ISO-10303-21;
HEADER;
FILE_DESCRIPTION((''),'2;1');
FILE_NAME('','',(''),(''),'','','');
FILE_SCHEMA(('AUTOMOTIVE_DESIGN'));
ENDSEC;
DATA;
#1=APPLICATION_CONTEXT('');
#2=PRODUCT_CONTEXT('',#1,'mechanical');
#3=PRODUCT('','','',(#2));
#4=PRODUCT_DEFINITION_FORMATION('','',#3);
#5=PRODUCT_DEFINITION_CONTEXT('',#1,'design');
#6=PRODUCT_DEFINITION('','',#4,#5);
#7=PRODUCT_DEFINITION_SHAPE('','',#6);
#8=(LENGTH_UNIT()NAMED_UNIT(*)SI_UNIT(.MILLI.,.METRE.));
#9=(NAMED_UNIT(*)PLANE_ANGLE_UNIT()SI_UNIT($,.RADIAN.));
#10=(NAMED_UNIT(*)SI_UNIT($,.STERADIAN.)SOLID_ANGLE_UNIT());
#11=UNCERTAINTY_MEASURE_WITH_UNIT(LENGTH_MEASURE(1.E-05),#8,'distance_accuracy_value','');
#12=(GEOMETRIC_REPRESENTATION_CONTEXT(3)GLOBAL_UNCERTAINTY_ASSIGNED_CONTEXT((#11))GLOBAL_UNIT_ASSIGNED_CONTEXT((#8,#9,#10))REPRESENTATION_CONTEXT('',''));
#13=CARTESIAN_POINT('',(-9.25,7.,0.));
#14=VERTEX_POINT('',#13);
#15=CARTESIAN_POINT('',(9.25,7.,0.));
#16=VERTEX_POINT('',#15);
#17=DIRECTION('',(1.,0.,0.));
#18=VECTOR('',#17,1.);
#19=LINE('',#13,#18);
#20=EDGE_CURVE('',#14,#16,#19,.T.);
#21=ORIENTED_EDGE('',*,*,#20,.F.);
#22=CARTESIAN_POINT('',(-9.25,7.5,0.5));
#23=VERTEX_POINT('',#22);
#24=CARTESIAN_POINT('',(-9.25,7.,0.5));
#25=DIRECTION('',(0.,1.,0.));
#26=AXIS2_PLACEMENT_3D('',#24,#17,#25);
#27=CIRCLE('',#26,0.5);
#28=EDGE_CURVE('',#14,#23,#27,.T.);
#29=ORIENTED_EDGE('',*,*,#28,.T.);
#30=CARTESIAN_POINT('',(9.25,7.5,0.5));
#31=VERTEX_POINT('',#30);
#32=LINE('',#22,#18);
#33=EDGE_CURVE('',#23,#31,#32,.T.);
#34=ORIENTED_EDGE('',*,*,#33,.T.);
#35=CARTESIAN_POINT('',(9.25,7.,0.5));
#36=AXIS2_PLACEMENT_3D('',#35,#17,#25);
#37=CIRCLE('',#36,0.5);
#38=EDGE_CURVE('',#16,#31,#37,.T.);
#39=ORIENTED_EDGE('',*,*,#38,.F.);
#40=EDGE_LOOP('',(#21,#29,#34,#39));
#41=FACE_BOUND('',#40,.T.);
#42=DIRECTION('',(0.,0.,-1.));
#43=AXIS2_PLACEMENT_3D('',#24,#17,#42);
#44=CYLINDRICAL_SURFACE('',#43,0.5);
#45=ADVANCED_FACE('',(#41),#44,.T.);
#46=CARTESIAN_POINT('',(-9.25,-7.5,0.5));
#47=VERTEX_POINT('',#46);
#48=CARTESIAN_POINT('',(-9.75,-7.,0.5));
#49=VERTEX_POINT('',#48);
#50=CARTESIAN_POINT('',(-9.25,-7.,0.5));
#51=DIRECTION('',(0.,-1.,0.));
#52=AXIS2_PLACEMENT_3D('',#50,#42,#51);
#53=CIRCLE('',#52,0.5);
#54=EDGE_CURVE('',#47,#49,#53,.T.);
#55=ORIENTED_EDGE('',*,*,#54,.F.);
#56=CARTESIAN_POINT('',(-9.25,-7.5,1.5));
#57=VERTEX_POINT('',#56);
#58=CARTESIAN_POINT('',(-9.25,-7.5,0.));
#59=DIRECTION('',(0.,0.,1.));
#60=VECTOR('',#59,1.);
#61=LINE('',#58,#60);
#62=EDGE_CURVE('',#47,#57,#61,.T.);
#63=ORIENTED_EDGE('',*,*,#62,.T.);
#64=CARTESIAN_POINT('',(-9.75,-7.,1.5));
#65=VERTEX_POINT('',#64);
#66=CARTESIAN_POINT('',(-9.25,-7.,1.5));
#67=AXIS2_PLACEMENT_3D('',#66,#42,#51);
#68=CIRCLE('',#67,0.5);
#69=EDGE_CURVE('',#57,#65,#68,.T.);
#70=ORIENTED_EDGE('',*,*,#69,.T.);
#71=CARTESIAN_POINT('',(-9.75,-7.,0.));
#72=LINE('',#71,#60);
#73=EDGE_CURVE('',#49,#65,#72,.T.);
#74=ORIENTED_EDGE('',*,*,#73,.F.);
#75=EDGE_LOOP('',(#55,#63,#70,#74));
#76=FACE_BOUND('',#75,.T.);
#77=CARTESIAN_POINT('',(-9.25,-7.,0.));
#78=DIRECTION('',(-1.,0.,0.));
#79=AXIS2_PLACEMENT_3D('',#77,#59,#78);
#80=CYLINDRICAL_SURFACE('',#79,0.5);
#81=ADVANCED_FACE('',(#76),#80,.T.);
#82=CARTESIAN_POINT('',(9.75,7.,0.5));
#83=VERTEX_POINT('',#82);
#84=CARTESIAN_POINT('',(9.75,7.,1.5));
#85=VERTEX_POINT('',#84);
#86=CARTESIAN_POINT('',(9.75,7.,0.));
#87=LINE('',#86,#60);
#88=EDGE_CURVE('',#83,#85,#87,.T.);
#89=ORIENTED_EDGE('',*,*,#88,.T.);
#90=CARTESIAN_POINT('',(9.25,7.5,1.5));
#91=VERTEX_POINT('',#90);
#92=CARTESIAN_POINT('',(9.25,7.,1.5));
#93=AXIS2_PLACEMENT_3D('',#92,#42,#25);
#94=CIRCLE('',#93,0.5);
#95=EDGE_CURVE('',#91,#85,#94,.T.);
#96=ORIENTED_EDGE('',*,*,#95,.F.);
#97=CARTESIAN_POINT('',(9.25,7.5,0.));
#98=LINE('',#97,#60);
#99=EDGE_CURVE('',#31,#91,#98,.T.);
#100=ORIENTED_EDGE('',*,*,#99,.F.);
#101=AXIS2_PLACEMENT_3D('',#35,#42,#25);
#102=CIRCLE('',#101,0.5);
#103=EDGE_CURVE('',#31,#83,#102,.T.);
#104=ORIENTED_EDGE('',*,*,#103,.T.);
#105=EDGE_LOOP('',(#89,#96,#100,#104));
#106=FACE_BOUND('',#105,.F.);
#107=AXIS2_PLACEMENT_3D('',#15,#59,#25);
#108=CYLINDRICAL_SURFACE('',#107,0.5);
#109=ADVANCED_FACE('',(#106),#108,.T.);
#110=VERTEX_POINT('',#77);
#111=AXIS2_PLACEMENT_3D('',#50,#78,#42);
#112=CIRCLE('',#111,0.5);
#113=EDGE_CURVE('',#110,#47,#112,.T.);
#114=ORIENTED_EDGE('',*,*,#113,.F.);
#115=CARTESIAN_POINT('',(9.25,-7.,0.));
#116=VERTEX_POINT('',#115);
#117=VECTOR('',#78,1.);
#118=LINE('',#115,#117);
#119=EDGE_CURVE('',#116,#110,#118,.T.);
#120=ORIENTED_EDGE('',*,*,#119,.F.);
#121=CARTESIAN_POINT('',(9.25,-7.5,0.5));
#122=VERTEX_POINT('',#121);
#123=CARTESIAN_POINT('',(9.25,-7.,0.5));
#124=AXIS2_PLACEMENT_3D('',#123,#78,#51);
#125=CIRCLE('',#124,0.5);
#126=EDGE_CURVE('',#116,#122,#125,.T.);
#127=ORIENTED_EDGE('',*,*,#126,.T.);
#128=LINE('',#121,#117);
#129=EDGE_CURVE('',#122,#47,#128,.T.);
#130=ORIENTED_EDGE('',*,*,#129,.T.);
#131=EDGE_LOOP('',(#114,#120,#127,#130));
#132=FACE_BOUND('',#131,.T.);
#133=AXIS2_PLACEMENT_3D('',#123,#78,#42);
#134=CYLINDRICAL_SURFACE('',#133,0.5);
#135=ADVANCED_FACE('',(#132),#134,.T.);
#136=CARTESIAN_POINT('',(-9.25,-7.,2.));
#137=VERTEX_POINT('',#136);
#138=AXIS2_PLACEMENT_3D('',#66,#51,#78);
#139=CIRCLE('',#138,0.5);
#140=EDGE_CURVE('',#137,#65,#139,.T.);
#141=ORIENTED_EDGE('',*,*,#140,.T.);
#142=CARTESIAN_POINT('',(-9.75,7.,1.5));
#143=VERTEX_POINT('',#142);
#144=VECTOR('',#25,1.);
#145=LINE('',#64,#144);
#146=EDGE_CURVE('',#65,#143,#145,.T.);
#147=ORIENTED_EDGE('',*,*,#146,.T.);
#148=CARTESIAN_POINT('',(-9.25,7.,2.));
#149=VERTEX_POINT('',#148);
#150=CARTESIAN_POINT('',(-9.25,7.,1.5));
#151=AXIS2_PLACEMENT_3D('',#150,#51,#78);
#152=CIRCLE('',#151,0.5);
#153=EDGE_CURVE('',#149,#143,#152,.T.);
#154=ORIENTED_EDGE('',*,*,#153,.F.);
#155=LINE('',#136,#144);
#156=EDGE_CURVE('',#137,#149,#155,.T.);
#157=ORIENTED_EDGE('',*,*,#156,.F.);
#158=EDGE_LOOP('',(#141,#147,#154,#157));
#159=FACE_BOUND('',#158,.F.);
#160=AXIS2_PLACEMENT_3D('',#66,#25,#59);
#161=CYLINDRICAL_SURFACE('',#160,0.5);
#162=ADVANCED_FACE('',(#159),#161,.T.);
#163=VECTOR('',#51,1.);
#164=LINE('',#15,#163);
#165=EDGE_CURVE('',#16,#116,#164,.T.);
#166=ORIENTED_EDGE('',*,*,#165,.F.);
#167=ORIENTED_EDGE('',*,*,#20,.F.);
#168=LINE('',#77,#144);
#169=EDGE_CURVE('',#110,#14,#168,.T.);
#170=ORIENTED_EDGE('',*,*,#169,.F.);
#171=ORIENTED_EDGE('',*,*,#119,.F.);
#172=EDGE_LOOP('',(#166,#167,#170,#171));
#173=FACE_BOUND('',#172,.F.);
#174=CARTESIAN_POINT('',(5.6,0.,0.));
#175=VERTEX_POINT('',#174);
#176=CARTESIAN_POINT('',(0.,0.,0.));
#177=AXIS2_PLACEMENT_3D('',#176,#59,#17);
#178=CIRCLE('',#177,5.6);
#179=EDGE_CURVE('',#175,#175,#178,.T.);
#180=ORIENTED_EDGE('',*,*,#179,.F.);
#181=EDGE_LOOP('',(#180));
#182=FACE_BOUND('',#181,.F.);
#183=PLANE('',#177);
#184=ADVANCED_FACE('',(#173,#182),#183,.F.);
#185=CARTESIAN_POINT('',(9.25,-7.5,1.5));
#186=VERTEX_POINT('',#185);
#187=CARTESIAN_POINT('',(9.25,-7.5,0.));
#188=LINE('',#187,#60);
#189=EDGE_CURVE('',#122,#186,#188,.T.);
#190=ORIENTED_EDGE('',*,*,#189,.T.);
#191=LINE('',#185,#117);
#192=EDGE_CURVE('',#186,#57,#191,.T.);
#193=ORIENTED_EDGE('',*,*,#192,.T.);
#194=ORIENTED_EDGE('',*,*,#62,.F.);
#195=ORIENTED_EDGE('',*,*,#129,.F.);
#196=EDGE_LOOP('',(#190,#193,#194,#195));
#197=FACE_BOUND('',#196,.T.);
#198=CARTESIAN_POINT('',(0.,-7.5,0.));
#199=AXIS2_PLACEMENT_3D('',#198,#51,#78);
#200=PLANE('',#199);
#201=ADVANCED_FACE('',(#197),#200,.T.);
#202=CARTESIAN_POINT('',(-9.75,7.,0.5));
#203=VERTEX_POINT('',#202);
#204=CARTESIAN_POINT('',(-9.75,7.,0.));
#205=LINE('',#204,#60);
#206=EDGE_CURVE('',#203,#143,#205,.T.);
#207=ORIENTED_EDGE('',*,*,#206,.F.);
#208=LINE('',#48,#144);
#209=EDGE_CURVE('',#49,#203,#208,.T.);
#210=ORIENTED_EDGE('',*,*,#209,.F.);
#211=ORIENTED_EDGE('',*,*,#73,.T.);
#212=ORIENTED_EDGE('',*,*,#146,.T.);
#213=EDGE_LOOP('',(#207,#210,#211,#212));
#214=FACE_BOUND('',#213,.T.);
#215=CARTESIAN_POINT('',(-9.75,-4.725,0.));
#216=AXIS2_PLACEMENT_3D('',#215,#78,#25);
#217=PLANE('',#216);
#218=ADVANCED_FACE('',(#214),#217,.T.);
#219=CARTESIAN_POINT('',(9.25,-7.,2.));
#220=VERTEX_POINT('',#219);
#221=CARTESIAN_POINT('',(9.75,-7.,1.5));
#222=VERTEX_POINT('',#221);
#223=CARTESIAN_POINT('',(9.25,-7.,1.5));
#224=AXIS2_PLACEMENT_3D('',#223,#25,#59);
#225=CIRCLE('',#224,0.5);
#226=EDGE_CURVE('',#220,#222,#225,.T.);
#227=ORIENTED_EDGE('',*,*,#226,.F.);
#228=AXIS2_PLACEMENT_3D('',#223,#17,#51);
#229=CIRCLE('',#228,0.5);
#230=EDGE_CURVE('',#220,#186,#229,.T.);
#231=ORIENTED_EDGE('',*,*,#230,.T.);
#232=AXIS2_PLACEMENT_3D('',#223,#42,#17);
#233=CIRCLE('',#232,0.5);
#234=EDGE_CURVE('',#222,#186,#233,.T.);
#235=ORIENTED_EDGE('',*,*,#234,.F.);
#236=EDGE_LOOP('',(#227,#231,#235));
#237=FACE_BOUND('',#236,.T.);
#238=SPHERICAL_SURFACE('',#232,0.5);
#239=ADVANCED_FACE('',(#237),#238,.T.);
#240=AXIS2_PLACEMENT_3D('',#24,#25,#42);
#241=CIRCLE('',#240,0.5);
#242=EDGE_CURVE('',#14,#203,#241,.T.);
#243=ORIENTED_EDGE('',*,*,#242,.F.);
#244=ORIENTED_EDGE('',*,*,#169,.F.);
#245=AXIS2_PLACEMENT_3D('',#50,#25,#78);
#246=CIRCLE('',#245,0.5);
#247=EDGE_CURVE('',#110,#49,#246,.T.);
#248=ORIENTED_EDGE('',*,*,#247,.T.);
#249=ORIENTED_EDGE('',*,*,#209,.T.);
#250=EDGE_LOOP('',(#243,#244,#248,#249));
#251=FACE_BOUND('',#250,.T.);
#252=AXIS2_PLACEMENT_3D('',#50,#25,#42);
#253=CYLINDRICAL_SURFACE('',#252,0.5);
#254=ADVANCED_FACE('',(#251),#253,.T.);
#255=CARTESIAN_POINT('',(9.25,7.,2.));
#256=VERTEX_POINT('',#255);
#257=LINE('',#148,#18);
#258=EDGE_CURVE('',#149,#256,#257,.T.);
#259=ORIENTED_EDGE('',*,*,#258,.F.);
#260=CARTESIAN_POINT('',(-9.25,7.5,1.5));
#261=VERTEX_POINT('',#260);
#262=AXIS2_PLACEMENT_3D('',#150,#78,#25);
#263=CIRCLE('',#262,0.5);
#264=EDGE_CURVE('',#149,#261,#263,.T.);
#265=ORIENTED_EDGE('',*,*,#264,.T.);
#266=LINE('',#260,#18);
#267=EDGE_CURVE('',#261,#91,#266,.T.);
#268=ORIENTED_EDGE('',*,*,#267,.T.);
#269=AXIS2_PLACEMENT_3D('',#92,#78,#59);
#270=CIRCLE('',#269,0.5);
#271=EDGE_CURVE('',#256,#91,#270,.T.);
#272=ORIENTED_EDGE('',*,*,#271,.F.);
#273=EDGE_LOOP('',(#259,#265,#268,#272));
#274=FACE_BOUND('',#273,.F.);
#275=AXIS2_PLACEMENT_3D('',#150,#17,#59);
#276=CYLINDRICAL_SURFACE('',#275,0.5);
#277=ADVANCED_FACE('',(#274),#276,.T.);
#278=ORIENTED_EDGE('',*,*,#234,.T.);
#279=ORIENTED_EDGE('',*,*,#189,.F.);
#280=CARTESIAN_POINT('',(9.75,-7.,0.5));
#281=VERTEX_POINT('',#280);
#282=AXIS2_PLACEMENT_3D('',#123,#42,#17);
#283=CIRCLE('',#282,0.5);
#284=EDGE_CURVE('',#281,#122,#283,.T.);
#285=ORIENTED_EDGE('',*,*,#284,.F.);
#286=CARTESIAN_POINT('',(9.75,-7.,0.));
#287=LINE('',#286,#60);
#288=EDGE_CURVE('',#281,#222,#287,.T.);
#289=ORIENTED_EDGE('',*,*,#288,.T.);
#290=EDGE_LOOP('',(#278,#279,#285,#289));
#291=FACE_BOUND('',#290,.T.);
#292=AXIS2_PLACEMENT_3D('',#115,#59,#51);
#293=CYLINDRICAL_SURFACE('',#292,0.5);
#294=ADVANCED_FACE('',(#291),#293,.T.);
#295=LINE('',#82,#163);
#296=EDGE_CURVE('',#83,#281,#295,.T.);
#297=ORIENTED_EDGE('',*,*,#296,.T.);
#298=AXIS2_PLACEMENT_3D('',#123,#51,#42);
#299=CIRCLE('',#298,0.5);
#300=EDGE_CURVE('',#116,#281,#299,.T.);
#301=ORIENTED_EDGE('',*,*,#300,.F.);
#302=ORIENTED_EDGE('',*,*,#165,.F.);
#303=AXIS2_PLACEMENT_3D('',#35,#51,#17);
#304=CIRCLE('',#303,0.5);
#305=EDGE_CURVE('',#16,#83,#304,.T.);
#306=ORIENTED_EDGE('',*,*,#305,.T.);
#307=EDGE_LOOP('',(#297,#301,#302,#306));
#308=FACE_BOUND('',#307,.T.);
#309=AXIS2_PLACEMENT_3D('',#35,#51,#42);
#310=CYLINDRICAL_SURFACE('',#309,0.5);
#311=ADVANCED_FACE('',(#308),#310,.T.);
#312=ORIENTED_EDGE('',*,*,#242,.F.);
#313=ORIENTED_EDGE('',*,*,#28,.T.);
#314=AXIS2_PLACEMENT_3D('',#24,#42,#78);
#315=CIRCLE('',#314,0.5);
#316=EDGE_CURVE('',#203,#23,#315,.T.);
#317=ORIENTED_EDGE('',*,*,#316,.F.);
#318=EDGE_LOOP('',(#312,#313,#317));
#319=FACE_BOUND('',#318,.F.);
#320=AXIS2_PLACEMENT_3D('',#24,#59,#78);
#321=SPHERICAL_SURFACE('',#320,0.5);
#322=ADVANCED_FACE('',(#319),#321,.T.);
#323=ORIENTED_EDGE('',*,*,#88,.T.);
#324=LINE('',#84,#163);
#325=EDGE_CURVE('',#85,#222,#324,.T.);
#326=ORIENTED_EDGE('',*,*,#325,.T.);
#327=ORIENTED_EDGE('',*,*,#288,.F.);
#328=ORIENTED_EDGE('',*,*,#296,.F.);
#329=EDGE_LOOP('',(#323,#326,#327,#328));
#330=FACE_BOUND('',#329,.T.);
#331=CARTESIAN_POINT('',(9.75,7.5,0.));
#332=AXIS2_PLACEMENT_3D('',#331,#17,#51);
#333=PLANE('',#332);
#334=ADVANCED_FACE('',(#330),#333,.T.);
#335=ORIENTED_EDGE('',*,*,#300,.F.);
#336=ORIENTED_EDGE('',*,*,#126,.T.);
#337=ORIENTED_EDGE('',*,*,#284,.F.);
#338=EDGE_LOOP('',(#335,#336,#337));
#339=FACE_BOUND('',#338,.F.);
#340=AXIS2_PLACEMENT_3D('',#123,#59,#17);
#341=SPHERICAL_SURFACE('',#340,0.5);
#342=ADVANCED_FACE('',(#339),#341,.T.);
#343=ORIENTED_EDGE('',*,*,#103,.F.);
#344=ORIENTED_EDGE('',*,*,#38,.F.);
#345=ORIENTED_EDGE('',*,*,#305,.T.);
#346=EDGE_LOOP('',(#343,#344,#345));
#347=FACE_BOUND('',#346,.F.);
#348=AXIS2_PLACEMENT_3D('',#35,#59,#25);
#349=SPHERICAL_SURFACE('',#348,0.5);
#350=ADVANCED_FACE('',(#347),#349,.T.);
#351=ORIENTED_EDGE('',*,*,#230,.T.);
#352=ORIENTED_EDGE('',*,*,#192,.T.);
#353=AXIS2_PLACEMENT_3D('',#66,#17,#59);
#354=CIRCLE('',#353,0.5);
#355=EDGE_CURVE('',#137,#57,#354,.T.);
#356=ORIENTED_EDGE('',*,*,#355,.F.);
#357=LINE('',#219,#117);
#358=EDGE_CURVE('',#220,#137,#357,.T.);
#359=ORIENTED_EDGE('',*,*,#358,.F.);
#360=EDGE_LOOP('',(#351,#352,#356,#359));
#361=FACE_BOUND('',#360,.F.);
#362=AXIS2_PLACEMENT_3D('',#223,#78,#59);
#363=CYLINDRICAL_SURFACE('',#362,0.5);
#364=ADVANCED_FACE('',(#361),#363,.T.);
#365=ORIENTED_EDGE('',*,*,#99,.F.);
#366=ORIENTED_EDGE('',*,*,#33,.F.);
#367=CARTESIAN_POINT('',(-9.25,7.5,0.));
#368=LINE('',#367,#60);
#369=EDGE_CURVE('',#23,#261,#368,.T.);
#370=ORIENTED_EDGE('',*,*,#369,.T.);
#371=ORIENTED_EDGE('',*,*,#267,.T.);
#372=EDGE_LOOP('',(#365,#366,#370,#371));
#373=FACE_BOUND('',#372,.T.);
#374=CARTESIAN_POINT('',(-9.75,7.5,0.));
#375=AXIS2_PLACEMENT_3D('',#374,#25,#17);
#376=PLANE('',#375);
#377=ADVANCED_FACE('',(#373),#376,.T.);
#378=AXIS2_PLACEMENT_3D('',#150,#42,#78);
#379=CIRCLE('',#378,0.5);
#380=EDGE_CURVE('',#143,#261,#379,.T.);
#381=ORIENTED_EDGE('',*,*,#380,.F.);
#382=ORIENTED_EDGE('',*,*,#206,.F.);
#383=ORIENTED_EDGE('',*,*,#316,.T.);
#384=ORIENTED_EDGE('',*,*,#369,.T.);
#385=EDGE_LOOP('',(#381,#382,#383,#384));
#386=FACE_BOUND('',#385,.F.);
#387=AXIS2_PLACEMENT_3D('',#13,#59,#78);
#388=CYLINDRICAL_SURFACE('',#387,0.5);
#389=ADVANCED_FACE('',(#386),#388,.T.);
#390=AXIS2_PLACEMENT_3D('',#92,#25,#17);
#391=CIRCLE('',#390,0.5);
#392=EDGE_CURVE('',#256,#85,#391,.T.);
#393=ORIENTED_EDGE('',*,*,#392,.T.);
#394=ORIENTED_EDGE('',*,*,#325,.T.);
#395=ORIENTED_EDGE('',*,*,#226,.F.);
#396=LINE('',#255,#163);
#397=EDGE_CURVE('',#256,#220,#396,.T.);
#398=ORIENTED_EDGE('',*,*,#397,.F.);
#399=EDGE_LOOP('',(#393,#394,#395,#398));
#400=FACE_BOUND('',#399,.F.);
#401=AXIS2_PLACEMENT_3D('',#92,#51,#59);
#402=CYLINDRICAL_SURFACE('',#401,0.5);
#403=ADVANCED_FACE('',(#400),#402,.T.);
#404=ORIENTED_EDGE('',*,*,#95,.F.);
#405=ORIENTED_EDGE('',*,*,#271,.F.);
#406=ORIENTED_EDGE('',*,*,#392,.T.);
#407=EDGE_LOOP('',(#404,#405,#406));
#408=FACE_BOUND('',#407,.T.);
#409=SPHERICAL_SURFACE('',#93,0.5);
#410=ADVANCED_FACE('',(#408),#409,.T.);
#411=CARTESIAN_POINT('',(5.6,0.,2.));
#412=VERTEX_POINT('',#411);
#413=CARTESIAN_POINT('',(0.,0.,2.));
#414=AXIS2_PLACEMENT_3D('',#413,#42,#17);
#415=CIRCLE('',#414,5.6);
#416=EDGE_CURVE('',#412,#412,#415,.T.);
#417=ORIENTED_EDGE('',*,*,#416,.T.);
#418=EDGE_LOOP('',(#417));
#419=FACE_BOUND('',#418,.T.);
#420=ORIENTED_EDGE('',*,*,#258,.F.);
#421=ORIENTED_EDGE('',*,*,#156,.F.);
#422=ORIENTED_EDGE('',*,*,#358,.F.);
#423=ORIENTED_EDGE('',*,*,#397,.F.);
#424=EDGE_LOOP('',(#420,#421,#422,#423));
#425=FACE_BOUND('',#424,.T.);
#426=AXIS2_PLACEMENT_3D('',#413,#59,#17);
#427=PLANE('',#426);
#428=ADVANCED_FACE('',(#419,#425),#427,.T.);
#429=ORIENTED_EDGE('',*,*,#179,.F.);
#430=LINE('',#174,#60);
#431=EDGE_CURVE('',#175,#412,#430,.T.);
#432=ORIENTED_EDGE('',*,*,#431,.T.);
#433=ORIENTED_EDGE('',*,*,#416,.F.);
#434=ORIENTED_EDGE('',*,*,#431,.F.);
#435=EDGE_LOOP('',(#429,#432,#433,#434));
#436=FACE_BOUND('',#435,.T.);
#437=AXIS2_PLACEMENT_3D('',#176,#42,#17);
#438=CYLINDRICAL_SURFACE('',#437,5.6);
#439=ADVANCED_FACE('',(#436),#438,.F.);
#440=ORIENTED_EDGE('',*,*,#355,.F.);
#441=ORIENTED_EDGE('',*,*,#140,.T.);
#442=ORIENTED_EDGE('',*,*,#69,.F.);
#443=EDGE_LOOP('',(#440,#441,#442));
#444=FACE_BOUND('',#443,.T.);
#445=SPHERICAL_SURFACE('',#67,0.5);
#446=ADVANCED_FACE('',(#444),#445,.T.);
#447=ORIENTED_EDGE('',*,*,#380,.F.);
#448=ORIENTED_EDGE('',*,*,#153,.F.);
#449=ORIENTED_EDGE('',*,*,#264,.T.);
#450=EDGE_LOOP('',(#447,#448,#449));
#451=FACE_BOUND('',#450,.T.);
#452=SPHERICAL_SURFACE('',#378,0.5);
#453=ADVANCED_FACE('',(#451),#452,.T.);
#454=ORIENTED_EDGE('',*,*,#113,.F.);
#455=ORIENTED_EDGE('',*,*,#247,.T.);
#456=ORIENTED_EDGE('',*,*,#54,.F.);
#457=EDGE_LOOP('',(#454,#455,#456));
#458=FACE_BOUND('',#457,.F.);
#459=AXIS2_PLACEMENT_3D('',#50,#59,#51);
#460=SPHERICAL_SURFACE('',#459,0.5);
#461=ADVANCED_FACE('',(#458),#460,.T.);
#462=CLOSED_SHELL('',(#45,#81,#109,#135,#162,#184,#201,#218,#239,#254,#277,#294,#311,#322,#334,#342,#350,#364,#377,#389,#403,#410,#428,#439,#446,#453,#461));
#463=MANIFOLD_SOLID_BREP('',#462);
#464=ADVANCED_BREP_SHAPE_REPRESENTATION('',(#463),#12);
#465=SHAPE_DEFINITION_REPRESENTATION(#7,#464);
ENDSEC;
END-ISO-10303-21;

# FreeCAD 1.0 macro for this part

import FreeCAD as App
import Part
import Sketcher
Q = App.Units.Quantity


def edges_at(feature, points):
    """Names of the edges that pass closest to the given points."""
    edges = feature.Shape.Edges
    near = lambda p: min(range(len(edges)), key=lambda i: edges[i].distToShape(Part.Vertex(*p))[0])
    return sorted({f"Edge{near(p) + 1}" for p in points})

doc = App.newDocument("Part")
body = doc.addObject("PartDesign::Body", "Body")

# Sketch on XY plane
sketch1 = body.newObject("Sketcher::SketchObject", "Sketch")
sketch1.AttachmentSupport = (doc.getObject("XY_Plane"), [""])
sketch1.MapMode = "FlatFace"
sketch1.addGeometry(Part.LineSegment(App.Vector(-10, -8, 0), App.Vector(10, -8, 0)), False)
sketch1.addGeometry(Part.LineSegment(App.Vector(10, -8, 0), App.Vector(10, 8, 0)), False)
sketch1.addGeometry(Part.LineSegment(App.Vector(10, 8, 0), App.Vector(-10, 8, 0)), False)
sketch1.addGeometry(Part.LineSegment(App.Vector(-10, 8, 0), App.Vector(-10, -8, 0)), False)
sketch1.addGeometry(Part.Circle(App.Vector(0, 0, 0), App.Vector(0, 0, 1), 6), False)
sketch1.addConstraint(Sketcher.Constraint("Coincident", 0, 2, 1, 1))
sketch1.addConstraint(Sketcher.Constraint("Coincident", 1, 2, 2, 1))
sketch1.addConstraint(Sketcher.Constraint("Coincident", 2, 2, 3, 1))
sketch1.addConstraint(Sketcher.Constraint("Coincident", 3, 2, 0, 1))
sketch1.addConstraint(Sketcher.Constraint("Horizontal", 0))
sketch1.addConstraint(Sketcher.Constraint("Vertical", 1))
sketch1.addConstraint(Sketcher.Constraint("Horizontal", 2))
sketch1.addConstraint(Sketcher.Constraint("Vertical", 3))
sketch1.addConstraint(Sketcher.Constraint("Coincident", 4, 3, -1, 1))
sketch1.addConstraint(Sketcher.Constraint("Symmetric", 0, 2, 2, 2, -1, 1))
sketch1.addConstraint(Sketcher.Constraint("Diameter", 4, Q("11.2 mm")))
sketch1.addConstraint(Sketcher.Constraint("DistanceY", 0, 2, -1, 1, Q("7.5 mm")))
sketch1.addConstraint(Sketcher.Constraint("DistanceX", 0, 1, 0, 2, Q("19.5 mm")))
pad1 = body.newObject("PartDesign::Pad", "Pad")
pad1.Profile = sketch1
pad1.Length = 2
doc.recompute()

fillet = body.newObject("PartDesign::Fillet", "Fillet")
fillet.Base = (pad1, edges_at(pad1, [
    (9.75, 7.5, 1),
    (-9.75, 7.5, 1),
    (-9.75, -7.5, 1),
    (9.75, -7.5, 1),
]))
fillet.Radius = 0.5
doc.recompute()

fillet2 = body.newObject("PartDesign::Fillet", "Fillet001")
fillet2.Base = (fillet, edges_at(fillet, [
    (-9.604, 7.354, 2),
    (-9.75, 0, 2),
    (-9.604, -7.354, 2),
    (0, -7.5, 2),
    (9.604, -7.354, 2),
    (9.75, 0, 2),
    (9.604, 7.354, 2),
    (0, 7.5, 2),
    (9.604, 7.354, 0),
    (9.75, 0, 0),
    (9.604, -7.354, 0),
    (0, -7.5, 0),
    (-9.604, -7.354, 0),
    (-9.75, 0, 0),
    (-9.604, 7.354, 0),
    (0, 7.5, 0),
]))
fillet2.Radius = 0.5

doc.recompute()
